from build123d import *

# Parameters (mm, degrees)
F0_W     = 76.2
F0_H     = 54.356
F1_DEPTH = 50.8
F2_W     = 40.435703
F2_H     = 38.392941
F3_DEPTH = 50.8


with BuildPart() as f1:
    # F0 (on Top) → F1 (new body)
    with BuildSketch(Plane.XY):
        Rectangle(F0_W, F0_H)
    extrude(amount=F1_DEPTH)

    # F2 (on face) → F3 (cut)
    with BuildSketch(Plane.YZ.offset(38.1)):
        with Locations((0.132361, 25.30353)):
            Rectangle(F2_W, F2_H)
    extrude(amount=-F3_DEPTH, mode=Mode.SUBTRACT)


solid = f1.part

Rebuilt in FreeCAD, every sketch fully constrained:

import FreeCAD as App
import Part
import Sketcher

V = App.Vector
Q = App.Units.Quantity


def add_polygon(sketch, points):
    """Adds a closed chain of lines whose ends are joined by coincident constraints."""
    first, n = sketch.GeometryCount, len(points)
    for a, b in zip(points, points[1:] + points[:1]):
        sketch.addGeometry(Part.LineSegment(App.Vector(*a, 0), App.Vector(*b, 0)), False)
    for i in range(n):
        sketch.addConstraint(Sketcher.Constraint("Coincident", first + i, 2, first + (i + 1) % n, 1))

doc = App.newDocument("Part")
body = doc.addObject("PartDesign::Body", "Body")

# Sketch on XY plane
sketch1 = body.newObject("Sketcher::SketchObject", "Sketch")
sketch1.AttachmentSupport = (doc.getObject("XY_Plane"), [""])
sketch1.MapMode = "FlatFace"
add_polygon(sketch1, [(-38, 27), (-38, -27), (38, -27), (38, 27)])  # lines 0-3
sketch1.addConstraint([
    Sketcher.Constraint("Vertical", 0),
    Sketcher.Constraint("Horizontal", 1),
    Sketcher.Constraint("Vertical", 2),
    Sketcher.Constraint("Horizontal", 3),
    Sketcher.Constraint("Symmetric", 0, 2, 2, 2, -1, 1),
    Sketcher.Constraint("DistanceX", 1, 1, 1, 2, Q("3 in")),
    Sketcher.Constraint("DistanceY", 0, 2, 0, 1, Q("2.14 in")),
])
pad1 = body.newObject("PartDesign::Pad", "Pad")
pad1.Profile = sketch1
pad1.Length = Q("2 in")

# Sketch on YZ plane
sketch2 = body.newObject("Sketcher::SketchObject", "Sketch001")
sketch2.AttachmentSupport = (doc.getObject("YZ_Plane"), [""])
sketch2.MapMode = "FlatFace"
sketch2.AttachmentOffset = App.Placement(V(0, 0, 1.5 * 25.4), App.Rotation())
add_polygon(sketch2, [(-20, 45), (-20, 6), (20, 6), (20, 45)])  # lines 0-3
sketch2.addConstraint([
    Sketcher.Constraint("Vertical", 0),
    Sketcher.Constraint("Horizontal", 1),
    Sketcher.Constraint("Vertical", 2),
    Sketcher.Constraint("Horizontal", 3),
    Sketcher.Constraint("DistanceY", 0, 2, 0, 1, Q("38.392941 mm")),
    Sketcher.Constraint("DistanceY", -1, 1, 2, 2, Q("44.5 mm")),
    Sketcher.Constraint("DistanceX", 1, 1, 1, 2, Q("40.435703 mm")),
    Sketcher.Constraint("DistanceX", 0, 2, -1, 1, Q("20.08549 mm")),
])
pocket1 = body.newObject("PartDesign::Pocket", "Pocket")
pocket1.Profile = sketch2
pocket1.Length = Q("2 in")

doc.recompute()
